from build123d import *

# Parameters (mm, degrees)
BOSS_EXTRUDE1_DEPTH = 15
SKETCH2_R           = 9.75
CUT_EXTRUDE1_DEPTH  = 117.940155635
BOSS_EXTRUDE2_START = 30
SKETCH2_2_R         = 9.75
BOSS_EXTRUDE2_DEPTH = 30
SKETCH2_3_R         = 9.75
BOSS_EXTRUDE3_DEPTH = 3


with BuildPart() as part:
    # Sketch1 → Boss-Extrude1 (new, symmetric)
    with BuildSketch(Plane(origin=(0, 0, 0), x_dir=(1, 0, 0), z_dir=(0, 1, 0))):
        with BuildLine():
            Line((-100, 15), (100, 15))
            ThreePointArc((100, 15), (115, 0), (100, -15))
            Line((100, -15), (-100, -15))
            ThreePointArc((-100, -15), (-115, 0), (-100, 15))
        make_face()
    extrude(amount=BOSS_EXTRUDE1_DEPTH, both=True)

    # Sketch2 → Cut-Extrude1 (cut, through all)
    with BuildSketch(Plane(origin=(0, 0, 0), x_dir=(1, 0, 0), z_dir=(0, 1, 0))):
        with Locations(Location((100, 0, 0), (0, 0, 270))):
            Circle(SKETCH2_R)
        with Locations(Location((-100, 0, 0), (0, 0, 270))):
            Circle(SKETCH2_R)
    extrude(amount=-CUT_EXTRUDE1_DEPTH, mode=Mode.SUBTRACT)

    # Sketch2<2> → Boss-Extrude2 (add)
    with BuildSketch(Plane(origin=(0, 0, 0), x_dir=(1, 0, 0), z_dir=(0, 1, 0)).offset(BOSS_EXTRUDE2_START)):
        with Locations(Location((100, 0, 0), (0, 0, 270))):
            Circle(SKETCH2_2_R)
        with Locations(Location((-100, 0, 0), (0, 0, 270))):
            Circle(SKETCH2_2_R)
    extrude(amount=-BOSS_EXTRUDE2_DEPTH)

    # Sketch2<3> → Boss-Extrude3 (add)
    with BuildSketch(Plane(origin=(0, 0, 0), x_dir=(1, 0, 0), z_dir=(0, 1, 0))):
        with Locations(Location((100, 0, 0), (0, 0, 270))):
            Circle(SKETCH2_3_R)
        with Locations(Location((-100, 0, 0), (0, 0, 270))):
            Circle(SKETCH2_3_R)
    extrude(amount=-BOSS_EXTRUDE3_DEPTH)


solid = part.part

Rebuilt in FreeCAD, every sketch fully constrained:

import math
import FreeCAD as App
import Part
import Sketcher

doc = App.newDocument("Part")
body = doc.addObject("PartDesign::Body", "Body")

# Sketch on XZ plane
sketch1 = body.newObject("Sketcher::SketchObject", "Sketch")
sketch1.AttachmentSupport = (doc.getObject("XZ_Plane"), [""])
sketch1.MapMode = "FlatFace"
sketch1.addGeometry(Part.LineSegment(App.Vector(100, -15, 0), App.Vector(-100, -15, 0)), False)
sketch1.addGeometry(Part.ArcOfCircle(Part.Circle(App.Vector(-100, 0, 0), App.Vector(0, 0, 1), 15), math.radians(90), math.radians(270)), False)
sketch1.addGeometry(Part.LineSegment(App.Vector(-100, 15, 0), App.Vector(100, 15, 0)), False)
sketch1.addGeometry(Part.ArcOfCircle(Part.Circle(App.Vector(100, 0, 0), App.Vector(0, 0, 1), 15), math.radians(-90), math.radians(90)), False)
sketch1.addConstraint(Sketcher.Constraint("Tangent", 0, 2, 1, 2))
sketch1.addConstraint(Sketcher.Constraint("Tangent", 1, 1, 2, 1))
sketch1.addConstraint(Sketcher.Constraint("Tangent", 2, 2, 3, 2))
sketch1.addConstraint(Sketcher.Constraint("Tangent", 3, 1, 0, 1))
sketch1.addConstraint(Sketcher.Constraint("Horizontal", 0))
sketch1.addConstraint(Sketcher.Constraint("Horizontal", 2))
sketch1.addConstraint(Sketcher.Constraint("Symmetric", 1, 3, 3, 3, -1, 1))
sketch1.addConstraint(Sketcher.Constraint("Radius", 1, 15.0))
sketch1.addConstraint(Sketcher.Constraint("DistanceX", 0, 2, 0, 1, 200.0))
pad1 = body.newObject("PartDesign::Pad", "Pad")
pad1.Profile = sketch1
pad1.Length = 30
pad1.Midplane = True

# Sketch on XZ plane
sketch2 = body.newObject("Sketcher::SketchObject", "Sketch001")
sketch2.AttachmentSupport = (doc.getObject("XZ_Plane"), [""])
sketch2.MapMode = "FlatFace"
sketch2.addGeometry(Part.Circle(App.Vector(100, 0, 0), App.Vector(0, 0, 1), 10), False)
sketch2.addGeometry(Part.Circle(App.Vector(-100, 0, 0), App.Vector(0, 0, 1), 10), False)
sketch2.addConstraint(Sketcher.Constraint("Equal", 0, 1))
sketch2.addConstraint(Sketcher.Constraint("Symmetric", 0, 3, 1, 3, -1, 1))
sketch2.addConstraint(Sketcher.Constraint("PointOnObject", 0, 3, -1))
sketch2.addConstraint(Sketcher.Constraint("Diameter", 0, 19.5))
sketch2.addConstraint(Sketcher.Constraint("DistanceX", -1, 1, 0, 3, 100.0))
pocket1 = body.newObject("PartDesign::Pocket", "Pocket")
pocket1.Profile = sketch2
pocket1.Type = "ThroughAll"
pocket1.Reversed = True

# Sketch on XZ plane
sketch3 = body.newObject("Sketcher::SketchObject", "Sketch002")
sketch3.AttachmentSupport = (doc.getObject("XZ_Plane"), [""])
sketch3.MapMode = "FlatFace"
sketch3.AttachmentOffset = App.Placement(App.Vector(0, 0, -30), App.Rotation())
sketch3.addGeometry(Part.Circle(App.Vector(100, 0, 0), App.Vector(0, 0, 1), 10), False)
sketch3.addGeometry(Part.Circle(App.Vector(-100, 0, 0), App.Vector(0, 0, 1), 10), False)
sketch3.addConstraint(Sketcher.Constraint("Equal", 0, 1))
sketch3.addConstraint(Sketcher.Constraint("Symmetric", 0, 3, 1, 3, -1, 1))
sketch3.addConstraint(Sketcher.Constraint("PointOnObject", 0, 3, -1))
sketch3.addConstraint(Sketcher.Constraint("Diameter", 0, 19.5))
sketch3.addConstraint(Sketcher.Constraint("DistanceX", -1, 1, 0, 3, 100.0))
pad2 = body.newObject("PartDesign::Pad", "Pad001")
pad2.Profile = sketch3
pad2.Length = 30

# Sketch on XZ plane
sketch4 = body.newObject("Sketcher::SketchObject", "Sketch003")
sketch4.AttachmentSupport = (doc.getObject("XZ_Plane"), [""])
sketch4.MapMode = "FlatFace"
sketch4.addGeometry(Part.Circle(App.Vector(100, 0, 0), App.Vector(0, 0, 1), 10), False)
sketch4.addGeometry(Part.Circle(App.Vector(-100, 0, 0), App.Vector(0, 0, 1), 10), False)
sketch4.addConstraint(Sketcher.Constraint("Equal", 0, 1))
sketch4.addConstraint(Sketcher.Constraint("Symmetric", 0, 3, 1, 3, -1, 1))
sketch4.addConstraint(Sketcher.Constraint("PointOnObject", 0, 3, -1))
sketch4.addConstraint(Sketcher.Constraint("Diameter", 0, 19.5))
sketch4.addConstraint(Sketcher.Constraint("DistanceX", -1, 1, 0, 3, 100.0))
pad3 = body.newObject("PartDesign::Pad", "Pad002")
pad3.Profile = sketch4
pad3.Length = 3

doc.recompute()
